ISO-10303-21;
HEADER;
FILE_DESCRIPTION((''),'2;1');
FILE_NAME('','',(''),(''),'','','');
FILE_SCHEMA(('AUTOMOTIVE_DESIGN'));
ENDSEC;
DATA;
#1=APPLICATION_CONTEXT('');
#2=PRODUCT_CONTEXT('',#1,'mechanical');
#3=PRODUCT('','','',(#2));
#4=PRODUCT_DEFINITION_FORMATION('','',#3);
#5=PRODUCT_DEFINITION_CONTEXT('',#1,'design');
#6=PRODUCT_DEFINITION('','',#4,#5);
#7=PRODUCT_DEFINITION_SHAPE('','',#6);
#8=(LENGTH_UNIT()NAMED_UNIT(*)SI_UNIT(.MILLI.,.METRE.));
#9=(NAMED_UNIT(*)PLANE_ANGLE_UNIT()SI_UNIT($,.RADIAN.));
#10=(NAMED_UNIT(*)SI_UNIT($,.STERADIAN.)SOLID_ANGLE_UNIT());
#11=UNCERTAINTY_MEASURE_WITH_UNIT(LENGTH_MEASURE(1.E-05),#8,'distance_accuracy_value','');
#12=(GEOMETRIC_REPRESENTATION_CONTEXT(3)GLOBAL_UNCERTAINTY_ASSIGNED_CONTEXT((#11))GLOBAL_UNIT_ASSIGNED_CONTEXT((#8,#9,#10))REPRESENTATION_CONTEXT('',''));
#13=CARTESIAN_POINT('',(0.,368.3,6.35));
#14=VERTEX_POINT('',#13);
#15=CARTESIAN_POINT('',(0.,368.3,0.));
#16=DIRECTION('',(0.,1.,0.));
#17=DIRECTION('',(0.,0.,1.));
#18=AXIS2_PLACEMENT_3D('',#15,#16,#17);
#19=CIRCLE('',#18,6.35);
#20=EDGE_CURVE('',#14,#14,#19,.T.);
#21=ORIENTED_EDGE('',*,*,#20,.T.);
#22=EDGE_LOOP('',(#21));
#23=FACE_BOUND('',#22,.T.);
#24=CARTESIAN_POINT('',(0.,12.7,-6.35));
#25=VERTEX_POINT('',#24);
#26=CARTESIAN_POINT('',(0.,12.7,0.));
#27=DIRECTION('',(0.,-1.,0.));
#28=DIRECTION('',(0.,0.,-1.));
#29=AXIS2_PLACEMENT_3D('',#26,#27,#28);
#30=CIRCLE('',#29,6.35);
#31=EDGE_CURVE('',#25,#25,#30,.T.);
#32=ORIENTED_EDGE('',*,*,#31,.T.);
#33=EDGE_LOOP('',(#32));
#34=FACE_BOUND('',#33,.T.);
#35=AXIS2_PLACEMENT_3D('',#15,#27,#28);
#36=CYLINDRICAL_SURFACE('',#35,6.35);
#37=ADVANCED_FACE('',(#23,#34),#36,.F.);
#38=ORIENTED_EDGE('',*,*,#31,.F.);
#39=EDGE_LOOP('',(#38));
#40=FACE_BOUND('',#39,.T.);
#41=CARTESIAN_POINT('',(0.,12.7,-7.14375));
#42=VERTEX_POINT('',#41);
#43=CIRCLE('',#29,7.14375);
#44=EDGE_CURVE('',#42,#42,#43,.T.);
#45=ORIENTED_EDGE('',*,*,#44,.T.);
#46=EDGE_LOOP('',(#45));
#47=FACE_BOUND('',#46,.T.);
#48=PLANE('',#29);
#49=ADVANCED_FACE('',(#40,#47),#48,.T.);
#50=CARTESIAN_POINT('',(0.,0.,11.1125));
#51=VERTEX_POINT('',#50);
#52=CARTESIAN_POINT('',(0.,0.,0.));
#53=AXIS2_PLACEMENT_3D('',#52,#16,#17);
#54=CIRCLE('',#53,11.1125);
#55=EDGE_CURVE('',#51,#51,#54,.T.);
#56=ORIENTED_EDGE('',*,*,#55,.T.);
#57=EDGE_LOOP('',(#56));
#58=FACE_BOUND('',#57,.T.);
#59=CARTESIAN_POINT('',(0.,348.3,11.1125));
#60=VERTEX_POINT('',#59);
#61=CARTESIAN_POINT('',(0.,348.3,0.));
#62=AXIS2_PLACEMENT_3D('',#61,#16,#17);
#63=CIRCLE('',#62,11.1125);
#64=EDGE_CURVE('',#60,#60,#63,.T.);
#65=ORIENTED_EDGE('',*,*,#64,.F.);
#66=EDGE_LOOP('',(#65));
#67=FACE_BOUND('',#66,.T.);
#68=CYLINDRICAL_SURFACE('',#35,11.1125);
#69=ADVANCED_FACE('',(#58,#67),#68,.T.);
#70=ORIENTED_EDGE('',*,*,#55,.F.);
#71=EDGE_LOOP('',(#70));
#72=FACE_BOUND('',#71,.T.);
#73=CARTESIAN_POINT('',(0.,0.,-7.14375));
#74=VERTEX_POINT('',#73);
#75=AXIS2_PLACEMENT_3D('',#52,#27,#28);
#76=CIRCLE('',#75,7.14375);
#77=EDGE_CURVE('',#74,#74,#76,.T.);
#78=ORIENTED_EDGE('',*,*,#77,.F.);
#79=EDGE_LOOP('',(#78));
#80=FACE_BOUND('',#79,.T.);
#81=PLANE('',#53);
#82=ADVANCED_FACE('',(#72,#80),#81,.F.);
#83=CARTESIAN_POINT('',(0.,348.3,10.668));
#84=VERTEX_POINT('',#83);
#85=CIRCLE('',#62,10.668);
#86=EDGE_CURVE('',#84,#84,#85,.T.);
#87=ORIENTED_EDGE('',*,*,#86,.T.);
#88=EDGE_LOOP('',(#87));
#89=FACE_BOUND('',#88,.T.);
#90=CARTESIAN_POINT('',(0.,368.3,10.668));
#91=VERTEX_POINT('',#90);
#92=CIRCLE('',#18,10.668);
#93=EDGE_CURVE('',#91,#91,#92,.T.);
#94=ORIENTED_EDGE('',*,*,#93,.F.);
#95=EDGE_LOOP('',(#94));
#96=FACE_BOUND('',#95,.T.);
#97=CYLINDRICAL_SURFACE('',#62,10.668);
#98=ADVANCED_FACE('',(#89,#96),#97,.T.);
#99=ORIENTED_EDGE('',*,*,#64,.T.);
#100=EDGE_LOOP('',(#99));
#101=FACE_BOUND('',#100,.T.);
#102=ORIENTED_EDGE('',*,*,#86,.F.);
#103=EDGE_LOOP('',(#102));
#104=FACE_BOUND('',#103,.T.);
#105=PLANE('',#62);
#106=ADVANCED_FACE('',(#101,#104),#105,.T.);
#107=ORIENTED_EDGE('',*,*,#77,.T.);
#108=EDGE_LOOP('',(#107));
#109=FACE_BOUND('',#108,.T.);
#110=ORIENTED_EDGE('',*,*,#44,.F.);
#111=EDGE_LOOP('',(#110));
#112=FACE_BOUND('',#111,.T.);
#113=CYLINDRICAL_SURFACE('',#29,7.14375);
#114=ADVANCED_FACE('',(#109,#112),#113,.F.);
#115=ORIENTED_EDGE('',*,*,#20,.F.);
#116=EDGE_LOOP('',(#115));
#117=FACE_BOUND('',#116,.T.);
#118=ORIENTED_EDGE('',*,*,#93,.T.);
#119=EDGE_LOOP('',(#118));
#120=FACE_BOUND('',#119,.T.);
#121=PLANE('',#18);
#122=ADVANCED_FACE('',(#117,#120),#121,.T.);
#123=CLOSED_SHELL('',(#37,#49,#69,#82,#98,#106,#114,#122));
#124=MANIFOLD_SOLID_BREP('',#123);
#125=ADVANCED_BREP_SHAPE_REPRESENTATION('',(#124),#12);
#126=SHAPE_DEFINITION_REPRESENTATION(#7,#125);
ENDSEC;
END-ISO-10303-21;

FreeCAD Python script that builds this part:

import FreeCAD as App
import Part
import Sketcher

V = App.Vector
Q = App.Units.Quantity

doc = App.newDocument("Part")
body = doc.addObject("PartDesign::Body", "Body")

# Sketch on XZ plane
sketch1 = body.newObject("Sketcher::SketchObject", "Sketch")
sketch1.AttachmentSupport = (doc.getObject("XZ_Plane"), [""])
sketch1.MapMode = "FlatFace"
sketch1.addGeometry(Part.Circle(V(0, 0, 0), V(0, 0, 1), 11), False)
sketch1.addGeometry(Part.Circle(V(0, 0, 0), V(0, 0, 1), 6), False)
sketch1.addConstraint(Sketcher.Constraint("Coincident", 0, 3, -1, 1))
sketch1.addConstraint(Sketcher.Constraint("Coincident", 1, 3, -1, 1))
sketch1.addConstraint(Sketcher.Constraint("Diameter", 1, Q("0.5 in")))
sketch1.addConstraint(Sketcher.Constraint("Diameter", 0, Q("0.875 in")))
pad1 = body.newObject("PartDesign::Pad", "Pad")
pad1.Profile = sketch1
pad1.Length = Q("14.5 in")
pad1.Reversed = True

# Sketch on XZ plane
sketch2 = body.newObject("Sketcher::SketchObject", "Sketch001")
sketch2.AttachmentSupport = (doc.getObject("XZ_Plane"), [""])
sketch2.MapMode = "FlatFace"
sketch2.AttachmentOffset = App.Placement(V(0, 0, -348.3), App.Rotation())
sketch2.addGeometry(Part.Circle(V(0, 0, 0), V(0, 0, 1), 11), False)
sketch2.addGeometry(Part.Circle(V(0, 0, 0), V(0, 0, 1), 11), False)
sketch2.addConstraint(Sketcher.Constraint("Coincident", 0, 3, -1, 1))
sketch2.addConstraint(Sketcher.Constraint("Coincident", 1, 3, -1, 1))
sketch2.addConstraint(Sketcher.Constraint("Diameter", 1, Q("0.84 in")))
sketch2.addConstraint(Sketcher.Constraint("Diameter", 0, Q("0.875 in")))
pocket1 = body.newObject("PartDesign::Pocket", "Pocket")
pocket1.Profile = sketch2
pocket1.Length = 20

# Sketch on XZ plane
sketch3 = body.newObject("Sketcher::SketchObject", "Sketch002")
sketch3.AttachmentSupport = (doc.getObject("XZ_Plane"), [""])
sketch3.MapMode = "FlatFace"
sketch3.addGeometry(Part.Circle(V(0, 0, 0), V(0, 0, 1), 7), False)
sketch3.addGeometry(Part.Circle(V(0, 0, 0), V(0, 0, 1), 6), False)
sketch3.addConstraint(Sketcher.Constraint("Coincident", 0, 3, -1, 1))
sketch3.addConstraint(Sketcher.Constraint("Coincident", 1, 3, -1, 1))
sketch3.addConstraint(Sketcher.Constraint("Diameter", 1, Q("0.5 in")))
sketch3.addConstraint(Sketcher.Constraint("Diameter", 0, Q("0.5625 in")))
pocket2 = body.newObject("PartDesign::Pocket", "Pocket001")
pocket2.Profile = sketch3
pocket2.Length = Q("0.5 in")

doc.recompute()
